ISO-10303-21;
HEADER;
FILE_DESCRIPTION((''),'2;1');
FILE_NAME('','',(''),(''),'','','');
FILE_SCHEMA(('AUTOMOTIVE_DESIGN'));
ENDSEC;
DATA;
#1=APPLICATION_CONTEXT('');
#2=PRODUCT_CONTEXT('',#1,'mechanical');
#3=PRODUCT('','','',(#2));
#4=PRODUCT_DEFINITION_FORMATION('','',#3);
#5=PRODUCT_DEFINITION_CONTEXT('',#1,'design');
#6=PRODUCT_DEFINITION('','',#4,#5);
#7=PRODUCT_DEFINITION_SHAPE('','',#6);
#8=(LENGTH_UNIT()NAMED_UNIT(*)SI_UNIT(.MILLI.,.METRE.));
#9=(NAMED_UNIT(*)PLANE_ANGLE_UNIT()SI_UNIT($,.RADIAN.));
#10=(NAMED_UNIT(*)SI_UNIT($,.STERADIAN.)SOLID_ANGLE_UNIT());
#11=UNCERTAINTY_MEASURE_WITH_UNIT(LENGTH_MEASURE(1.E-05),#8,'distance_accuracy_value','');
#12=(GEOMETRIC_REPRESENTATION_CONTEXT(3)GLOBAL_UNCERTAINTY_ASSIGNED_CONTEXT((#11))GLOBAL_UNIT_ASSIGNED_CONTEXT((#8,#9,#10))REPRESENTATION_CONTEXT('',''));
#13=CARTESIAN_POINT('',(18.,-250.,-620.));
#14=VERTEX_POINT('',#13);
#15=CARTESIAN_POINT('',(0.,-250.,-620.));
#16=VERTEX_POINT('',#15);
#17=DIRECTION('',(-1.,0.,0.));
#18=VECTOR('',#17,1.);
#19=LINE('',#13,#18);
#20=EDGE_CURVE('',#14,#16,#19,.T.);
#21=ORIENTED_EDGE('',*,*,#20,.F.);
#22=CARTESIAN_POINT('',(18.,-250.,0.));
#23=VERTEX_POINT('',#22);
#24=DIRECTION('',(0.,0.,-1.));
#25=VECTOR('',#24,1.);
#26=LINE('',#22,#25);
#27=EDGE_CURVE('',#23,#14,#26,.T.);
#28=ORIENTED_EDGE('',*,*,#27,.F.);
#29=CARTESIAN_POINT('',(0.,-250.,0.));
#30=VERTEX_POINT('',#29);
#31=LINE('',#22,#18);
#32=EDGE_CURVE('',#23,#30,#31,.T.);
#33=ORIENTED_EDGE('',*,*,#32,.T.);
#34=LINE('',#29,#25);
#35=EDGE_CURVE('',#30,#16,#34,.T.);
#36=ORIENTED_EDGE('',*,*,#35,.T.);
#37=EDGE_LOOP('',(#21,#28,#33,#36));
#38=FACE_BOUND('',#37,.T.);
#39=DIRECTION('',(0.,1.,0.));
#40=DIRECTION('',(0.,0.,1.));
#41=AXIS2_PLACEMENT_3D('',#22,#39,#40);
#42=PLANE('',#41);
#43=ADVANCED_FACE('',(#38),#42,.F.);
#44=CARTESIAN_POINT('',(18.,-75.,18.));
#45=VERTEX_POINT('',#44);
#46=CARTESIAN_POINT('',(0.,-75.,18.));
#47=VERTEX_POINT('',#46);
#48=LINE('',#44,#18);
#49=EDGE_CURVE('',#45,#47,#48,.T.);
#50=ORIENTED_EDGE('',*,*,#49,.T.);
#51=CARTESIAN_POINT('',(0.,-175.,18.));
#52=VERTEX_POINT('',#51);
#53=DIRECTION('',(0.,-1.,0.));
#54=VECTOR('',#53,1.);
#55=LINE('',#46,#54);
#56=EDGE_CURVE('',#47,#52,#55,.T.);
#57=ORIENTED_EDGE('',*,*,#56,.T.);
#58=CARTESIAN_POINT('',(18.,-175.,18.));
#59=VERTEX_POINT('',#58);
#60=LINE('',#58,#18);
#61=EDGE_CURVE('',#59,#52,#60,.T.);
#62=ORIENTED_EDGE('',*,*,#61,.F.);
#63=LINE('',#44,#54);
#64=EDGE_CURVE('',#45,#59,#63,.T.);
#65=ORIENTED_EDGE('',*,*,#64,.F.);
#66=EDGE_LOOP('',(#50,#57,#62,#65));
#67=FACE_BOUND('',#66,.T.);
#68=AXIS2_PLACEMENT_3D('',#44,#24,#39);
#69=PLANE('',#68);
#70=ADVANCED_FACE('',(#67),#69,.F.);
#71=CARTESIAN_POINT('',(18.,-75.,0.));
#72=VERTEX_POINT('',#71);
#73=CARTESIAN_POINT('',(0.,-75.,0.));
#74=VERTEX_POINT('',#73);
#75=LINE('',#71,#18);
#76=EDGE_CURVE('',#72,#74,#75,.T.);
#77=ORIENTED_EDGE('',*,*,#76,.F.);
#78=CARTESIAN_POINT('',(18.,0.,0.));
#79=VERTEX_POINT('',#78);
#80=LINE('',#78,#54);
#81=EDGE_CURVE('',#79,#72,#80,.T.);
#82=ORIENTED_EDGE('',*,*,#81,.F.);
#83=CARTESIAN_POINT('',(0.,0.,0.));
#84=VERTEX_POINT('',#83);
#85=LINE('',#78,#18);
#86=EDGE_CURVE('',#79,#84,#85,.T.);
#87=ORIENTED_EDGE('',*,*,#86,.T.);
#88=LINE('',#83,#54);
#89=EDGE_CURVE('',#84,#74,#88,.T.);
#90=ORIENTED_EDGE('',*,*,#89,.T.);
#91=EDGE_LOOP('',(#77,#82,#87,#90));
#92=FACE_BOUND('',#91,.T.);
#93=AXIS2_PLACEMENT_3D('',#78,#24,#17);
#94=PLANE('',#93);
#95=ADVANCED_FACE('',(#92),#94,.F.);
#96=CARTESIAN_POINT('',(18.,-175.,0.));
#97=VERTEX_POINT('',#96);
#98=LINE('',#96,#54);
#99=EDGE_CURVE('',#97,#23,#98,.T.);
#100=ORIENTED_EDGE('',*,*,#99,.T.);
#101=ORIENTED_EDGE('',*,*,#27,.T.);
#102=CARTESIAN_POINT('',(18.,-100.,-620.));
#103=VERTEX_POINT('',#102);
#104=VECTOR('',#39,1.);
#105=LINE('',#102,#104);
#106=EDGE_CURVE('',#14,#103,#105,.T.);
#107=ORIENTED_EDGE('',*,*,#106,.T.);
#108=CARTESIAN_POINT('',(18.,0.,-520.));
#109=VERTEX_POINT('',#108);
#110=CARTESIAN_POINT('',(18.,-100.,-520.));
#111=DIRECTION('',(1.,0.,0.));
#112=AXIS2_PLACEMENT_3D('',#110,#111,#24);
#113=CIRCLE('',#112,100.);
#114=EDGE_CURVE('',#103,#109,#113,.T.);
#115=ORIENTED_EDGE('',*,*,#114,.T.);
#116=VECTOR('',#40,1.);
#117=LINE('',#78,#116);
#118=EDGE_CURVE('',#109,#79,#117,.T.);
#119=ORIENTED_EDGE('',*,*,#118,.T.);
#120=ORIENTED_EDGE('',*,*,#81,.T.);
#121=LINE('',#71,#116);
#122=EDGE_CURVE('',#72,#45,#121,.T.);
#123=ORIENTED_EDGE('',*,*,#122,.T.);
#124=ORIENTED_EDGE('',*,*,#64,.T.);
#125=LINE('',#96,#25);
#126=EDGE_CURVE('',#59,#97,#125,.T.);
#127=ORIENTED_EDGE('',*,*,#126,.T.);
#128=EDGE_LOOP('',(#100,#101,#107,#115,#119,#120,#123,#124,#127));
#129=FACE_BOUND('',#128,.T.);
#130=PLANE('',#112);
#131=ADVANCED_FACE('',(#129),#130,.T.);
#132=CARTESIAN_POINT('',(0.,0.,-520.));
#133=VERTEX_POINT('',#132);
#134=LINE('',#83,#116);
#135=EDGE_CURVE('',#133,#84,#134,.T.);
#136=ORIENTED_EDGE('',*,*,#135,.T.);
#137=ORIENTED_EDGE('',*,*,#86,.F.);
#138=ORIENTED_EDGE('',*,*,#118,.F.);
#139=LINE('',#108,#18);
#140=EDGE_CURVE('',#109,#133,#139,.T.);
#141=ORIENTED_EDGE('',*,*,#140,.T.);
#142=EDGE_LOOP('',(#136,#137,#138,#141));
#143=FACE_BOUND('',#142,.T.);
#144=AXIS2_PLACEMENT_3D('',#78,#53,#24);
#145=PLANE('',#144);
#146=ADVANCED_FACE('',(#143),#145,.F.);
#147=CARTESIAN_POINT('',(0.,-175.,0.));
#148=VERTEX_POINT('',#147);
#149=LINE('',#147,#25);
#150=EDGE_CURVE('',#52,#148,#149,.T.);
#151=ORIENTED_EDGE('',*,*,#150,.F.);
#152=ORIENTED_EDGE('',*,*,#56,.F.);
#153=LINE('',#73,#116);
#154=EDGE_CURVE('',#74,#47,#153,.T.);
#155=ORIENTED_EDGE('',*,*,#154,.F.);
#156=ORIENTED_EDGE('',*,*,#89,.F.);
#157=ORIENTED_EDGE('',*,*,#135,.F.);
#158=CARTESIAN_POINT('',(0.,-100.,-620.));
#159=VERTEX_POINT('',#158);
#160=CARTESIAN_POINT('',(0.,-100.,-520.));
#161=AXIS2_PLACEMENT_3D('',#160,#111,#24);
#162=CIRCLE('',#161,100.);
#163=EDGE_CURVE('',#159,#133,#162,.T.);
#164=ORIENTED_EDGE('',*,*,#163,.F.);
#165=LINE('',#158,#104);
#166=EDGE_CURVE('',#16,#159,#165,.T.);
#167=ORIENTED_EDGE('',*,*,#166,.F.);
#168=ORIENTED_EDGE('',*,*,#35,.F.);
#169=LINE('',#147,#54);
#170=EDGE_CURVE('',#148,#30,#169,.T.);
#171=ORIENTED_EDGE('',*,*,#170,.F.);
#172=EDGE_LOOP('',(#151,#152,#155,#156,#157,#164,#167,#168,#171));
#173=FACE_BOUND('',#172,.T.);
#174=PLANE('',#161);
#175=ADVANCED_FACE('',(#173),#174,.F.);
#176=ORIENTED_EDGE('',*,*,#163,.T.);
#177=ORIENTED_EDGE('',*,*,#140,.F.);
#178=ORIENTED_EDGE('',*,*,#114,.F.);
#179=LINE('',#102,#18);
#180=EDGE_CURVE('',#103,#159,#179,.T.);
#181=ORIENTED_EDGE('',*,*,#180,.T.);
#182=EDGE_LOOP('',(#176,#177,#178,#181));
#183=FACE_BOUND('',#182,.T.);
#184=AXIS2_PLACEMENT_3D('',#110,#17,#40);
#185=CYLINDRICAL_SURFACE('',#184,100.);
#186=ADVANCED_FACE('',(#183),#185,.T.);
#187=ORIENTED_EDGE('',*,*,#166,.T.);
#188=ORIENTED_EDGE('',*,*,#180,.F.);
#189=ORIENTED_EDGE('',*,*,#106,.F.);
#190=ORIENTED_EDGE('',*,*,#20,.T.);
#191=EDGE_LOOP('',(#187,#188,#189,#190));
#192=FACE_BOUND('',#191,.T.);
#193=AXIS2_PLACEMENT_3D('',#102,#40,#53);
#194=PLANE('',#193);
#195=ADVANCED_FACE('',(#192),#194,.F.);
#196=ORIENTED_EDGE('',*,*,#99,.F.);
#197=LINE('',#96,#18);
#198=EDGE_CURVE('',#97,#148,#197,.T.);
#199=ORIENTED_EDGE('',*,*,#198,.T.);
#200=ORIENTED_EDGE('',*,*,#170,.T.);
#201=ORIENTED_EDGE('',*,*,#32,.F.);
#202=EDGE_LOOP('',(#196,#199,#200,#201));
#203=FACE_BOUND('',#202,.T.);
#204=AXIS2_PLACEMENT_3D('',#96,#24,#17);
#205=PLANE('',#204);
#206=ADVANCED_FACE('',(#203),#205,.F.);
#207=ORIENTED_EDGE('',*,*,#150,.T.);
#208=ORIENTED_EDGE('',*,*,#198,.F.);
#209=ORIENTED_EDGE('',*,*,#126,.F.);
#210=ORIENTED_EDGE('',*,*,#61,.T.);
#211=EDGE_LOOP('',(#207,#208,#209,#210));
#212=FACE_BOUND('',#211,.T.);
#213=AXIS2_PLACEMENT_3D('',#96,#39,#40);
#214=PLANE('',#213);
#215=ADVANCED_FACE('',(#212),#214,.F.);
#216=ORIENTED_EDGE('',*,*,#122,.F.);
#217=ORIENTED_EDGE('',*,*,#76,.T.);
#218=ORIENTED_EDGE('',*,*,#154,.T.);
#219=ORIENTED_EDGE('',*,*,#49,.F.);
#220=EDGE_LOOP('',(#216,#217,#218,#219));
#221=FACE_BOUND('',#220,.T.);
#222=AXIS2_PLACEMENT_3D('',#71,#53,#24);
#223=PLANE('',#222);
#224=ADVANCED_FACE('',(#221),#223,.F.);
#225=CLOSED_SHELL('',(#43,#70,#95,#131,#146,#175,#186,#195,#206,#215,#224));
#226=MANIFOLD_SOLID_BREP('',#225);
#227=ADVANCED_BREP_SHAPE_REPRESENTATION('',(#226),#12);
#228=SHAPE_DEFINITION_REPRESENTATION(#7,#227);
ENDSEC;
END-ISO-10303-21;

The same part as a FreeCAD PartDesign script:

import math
import FreeCAD as App
import Part
import Sketcher

V = App.Vector
Q = App.Units.Quantity

doc = App.newDocument("Part")
body = doc.addObject("PartDesign::Body", "Body")

sketch1 = body.newObject("Sketcher::SketchObject", "Sketch")
sketch1.AttachmentSupport = (doc.getObject("YZ_Plane"), [""])
sketch1.MapMode = "FlatFace"
sketch1.addGeometry(Part.LineSegment(V(-175, 0, 0), V(-250, 0, 0)), False)
sketch1.addGeometry(Part.LineSegment(V(-250, 0, 0), V(-250, -620, 0)), False)
sketch1.addGeometry(Part.LineSegment(V(-250, -620, 0), V(-100, -620, 0)), False)
sketch1.addGeometry(Part.ArcOfCircle(Part.Circle(V(-100, -520, 0), V(0, 0, 1), 100), math.radians(-90), math.radians(0)), False)
sketch1.addGeometry(Part.LineSegment(V(0, -520, 0), V(0, 0, 0)), False)
sketch1.addGeometry(Part.LineSegment(V(0, 0, 0), V(-75, 0, 0)), False)
sketch1.addGeometry(Part.LineSegment(V(-75, 0, 0), V(-75, 18, 0)), False)
sketch1.addGeometry(Part.LineSegment(V(-75, 18, 0), V(-175, 18, 0)), False)
sketch1.addGeometry(Part.LineSegment(V(-175, 18, 0), V(-175, 0, 0)), False)
sketch1.addConstraint(Sketcher.Constraint("Coincident", 0, 2, 1, 1))
sketch1.addConstraint(Sketcher.Constraint("Coincident", 1, 2, 2, 1))
sketch1.addConstraint(Sketcher.Constraint("Tangent", 2, 2, 3, 1))
sketch1.addConstraint(Sketcher.Constraint("Tangent", 3, 2, 4, 1))
sketch1.addConstraint(Sketcher.Constraint("Coincident", 4, 2, 5, 1))
sketch1.addConstraint(Sketcher.Constraint("Coincident", 5, 2, 6, 1))
sketch1.addConstraint(Sketcher.Constraint("Coincident", 6, 2, 7, 1))
sketch1.addConstraint(Sketcher.Constraint("Coincident", 7, 2, 8, 1))
sketch1.addConstraint(Sketcher.Constraint("Coincident", 8, 2, 0, 1))
sketch1.addConstraint(Sketcher.Constraint("Horizontal", 0))
sketch1.addConstraint(Sketcher.Constraint("Vertical", 1))
sketch1.addConstraint(Sketcher.Constraint("Horizontal", 2))
sketch1.addConstraint(Sketcher.Constraint("Vertical", 4))
sketch1.addConstraint(Sketcher.Constraint("Horizontal", 5))
sketch1.addConstraint(Sketcher.Constraint("Vertical", 6))
sketch1.addConstraint(Sketcher.Constraint("Horizontal", 7))
sketch1.addConstraint(Sketcher.Constraint("Vertical", 8))
sketch1.addConstraint(Sketcher.Constraint("Coincident", 4, 2, -1, 1))
sketch1.addConstraint(Sketcher.Constraint("PointOnObject", 0, 2, -1))
sketch1.addConstraint(Sketcher.Constraint("Equal", 0, 5))
sketch1.addConstraint(Sketcher.Constraint("Radius", 3, Q("100 mm")))
sketch1.addConstraint(Sketcher.Constraint("DistanceX", 0, 2, 0, 1, Q("75 mm")))
sketch1.addConstraint(Sketcher.Constraint("DistanceX", 2, 1, 2, 2, Q("150 mm")))
sketch1.addConstraint(Sketcher.Constraint("DistanceY", 1, 2, 1, 1, Q("620 mm")))
sketch1.addConstraint(Sketcher.Constraint("DistanceY", 6, 1, 6, 2, Q("18 mm")))
pad1 = body.newObject("PartDesign::Pad", "Pad")
pad1.Profile = sketch1
pad1.Length = 18

doc.recompute()
